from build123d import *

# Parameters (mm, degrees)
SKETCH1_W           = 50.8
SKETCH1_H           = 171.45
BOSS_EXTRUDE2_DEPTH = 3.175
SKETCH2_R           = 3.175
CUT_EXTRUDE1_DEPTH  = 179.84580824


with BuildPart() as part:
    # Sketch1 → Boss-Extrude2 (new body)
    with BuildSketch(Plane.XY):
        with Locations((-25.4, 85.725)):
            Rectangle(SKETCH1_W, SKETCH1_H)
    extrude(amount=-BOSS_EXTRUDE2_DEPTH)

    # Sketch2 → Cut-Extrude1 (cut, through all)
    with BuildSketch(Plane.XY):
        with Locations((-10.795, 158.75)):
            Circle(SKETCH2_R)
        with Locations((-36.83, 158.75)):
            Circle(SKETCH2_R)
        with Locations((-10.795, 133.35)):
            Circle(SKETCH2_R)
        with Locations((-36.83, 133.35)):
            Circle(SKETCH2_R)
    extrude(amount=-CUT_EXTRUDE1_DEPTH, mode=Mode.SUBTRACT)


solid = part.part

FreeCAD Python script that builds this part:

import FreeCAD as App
import Part
import Sketcher
from FreeCAD import Vector
Q = App.Units.Quantity

doc = App.newDocument("Part")
body = doc.addObject("PartDesign::Body", "Body")

# Sketch on XY plane
sketch1 = body.newObject("Sketcher::SketchObject", "Sketch")
sketch1.AttachmentSupport = (doc.getObject("XY_Plane"), [""])
sketch1.MapMode = "FlatFace"
sketch1.addGeometry(Part.LineSegment(Vector(-51, 171, 0), Vector(-51, 0, 0)), False)
sketch1.addGeometry(Part.LineSegment(Vector(-51, 0, 0), Vector(0, 0, 0)), False)
sketch1.addGeometry(Part.LineSegment(Vector(0, 0, 0), Vector(0, 171, 0)), False)
sketch1.addGeometry(Part.LineSegment(Vector(0, 171, 0), Vector(-51, 171, 0)), False)
sketch1.addConstraint(Sketcher.Constraint("Coincident", 0, 2, 1, 1))
sketch1.addConstraint(Sketcher.Constraint("Coincident", 1, 2, 2, 1))
sketch1.addConstraint(Sketcher.Constraint("Coincident", 2, 2, 3, 1))
sketch1.addConstraint(Sketcher.Constraint("Coincident", 3, 2, 0, 1))
sketch1.addConstraint(Sketcher.Constraint("Vertical", 0))
sketch1.addConstraint(Sketcher.Constraint("Horizontal", 1))
sketch1.addConstraint(Sketcher.Constraint("Vertical", 2))
sketch1.addConstraint(Sketcher.Constraint("Horizontal", 3))
sketch1.addConstraint(Sketcher.Constraint("Coincident", 1, 2, -1, 1))
sketch1.addConstraint(Sketcher.Constraint("DistanceX", 1, 1, 1, 2, Q("2 in")))
sketch1.addConstraint(Sketcher.Constraint("DistanceY", 0, 2, 0, 1, Q("6.75 in")))
pad1 = body.newObject("PartDesign::Pad", "Pad")
pad1.Profile = sketch1
pad1.Length = Q("0.125 in")
pad1.Reversed = True

# Sketch on XY plane
sketch2 = body.newObject("Sketcher::SketchObject", "Sketch001")
sketch2.AttachmentSupport = (doc.getObject("XY_Plane"), [""])
sketch2.MapMode = "FlatFace"
sketch2.addGeometry(Part.Circle(Vector(-10.8, 158.8, 0), Vector(0, 0, 1), 3.2), False)
sketch2.addGeometry(Part.Circle(Vector(-36.8, 158.8, 0), Vector(0, 0, 1), 3.2), False)
sketch2.addGeometry(Part.Circle(Vector(-10.8, 133.3, 0), Vector(0, 0, 1), 3.2), False)
sketch2.addGeometry(Part.Circle(Vector(-36.8, 133.3, 0), Vector(0, 0, 1), 3.2), False)
sketch2.addConstraint(Sketcher.Constraint("Equal", 0, 1))
sketch2.addConstraint(Sketcher.Constraint("Equal", 1, 2))
sketch2.addConstraint(Sketcher.Constraint("Equal", 2, 3))
sketch2.addConstraint(Sketcher.Constraint("Horizontal", 0, 3, 1, 3))
sketch2.addConstraint(Sketcher.Constraint("Horizontal", 2, 3, 3, 3))
sketch2.addConstraint(Sketcher.Constraint("Vertical", 0, 3, 2, 3))
sketch2.addConstraint(Sketcher.Constraint("Vertical", 1, 3, 3, 3))
sketch2.addConstraint(Sketcher.Constraint("Diameter", 0, Q("0.25 in")))
sketch2.addConstraint(Sketcher.Constraint("DistanceY", 2, 3, 0, 3, Q("1 in")))
sketch2.addConstraint(Sketcher.Constraint("DistanceY", -1, 1, 0, 3, Q("6.25 in")))
sketch2.addConstraint(Sketcher.Constraint("DistanceX", 1, 3, -1, 1, Q("1.45 in")))
sketch2.addConstraint(Sketcher.Constraint("DistanceX", 0, 3, -1, 1, Q("0.425 in")))
pocket1 = body.newObject("PartDesign::Pocket", "Pocket")
pocket1.Profile = sketch2
pocket1.Type = "ThroughAll"

doc.recompute()
